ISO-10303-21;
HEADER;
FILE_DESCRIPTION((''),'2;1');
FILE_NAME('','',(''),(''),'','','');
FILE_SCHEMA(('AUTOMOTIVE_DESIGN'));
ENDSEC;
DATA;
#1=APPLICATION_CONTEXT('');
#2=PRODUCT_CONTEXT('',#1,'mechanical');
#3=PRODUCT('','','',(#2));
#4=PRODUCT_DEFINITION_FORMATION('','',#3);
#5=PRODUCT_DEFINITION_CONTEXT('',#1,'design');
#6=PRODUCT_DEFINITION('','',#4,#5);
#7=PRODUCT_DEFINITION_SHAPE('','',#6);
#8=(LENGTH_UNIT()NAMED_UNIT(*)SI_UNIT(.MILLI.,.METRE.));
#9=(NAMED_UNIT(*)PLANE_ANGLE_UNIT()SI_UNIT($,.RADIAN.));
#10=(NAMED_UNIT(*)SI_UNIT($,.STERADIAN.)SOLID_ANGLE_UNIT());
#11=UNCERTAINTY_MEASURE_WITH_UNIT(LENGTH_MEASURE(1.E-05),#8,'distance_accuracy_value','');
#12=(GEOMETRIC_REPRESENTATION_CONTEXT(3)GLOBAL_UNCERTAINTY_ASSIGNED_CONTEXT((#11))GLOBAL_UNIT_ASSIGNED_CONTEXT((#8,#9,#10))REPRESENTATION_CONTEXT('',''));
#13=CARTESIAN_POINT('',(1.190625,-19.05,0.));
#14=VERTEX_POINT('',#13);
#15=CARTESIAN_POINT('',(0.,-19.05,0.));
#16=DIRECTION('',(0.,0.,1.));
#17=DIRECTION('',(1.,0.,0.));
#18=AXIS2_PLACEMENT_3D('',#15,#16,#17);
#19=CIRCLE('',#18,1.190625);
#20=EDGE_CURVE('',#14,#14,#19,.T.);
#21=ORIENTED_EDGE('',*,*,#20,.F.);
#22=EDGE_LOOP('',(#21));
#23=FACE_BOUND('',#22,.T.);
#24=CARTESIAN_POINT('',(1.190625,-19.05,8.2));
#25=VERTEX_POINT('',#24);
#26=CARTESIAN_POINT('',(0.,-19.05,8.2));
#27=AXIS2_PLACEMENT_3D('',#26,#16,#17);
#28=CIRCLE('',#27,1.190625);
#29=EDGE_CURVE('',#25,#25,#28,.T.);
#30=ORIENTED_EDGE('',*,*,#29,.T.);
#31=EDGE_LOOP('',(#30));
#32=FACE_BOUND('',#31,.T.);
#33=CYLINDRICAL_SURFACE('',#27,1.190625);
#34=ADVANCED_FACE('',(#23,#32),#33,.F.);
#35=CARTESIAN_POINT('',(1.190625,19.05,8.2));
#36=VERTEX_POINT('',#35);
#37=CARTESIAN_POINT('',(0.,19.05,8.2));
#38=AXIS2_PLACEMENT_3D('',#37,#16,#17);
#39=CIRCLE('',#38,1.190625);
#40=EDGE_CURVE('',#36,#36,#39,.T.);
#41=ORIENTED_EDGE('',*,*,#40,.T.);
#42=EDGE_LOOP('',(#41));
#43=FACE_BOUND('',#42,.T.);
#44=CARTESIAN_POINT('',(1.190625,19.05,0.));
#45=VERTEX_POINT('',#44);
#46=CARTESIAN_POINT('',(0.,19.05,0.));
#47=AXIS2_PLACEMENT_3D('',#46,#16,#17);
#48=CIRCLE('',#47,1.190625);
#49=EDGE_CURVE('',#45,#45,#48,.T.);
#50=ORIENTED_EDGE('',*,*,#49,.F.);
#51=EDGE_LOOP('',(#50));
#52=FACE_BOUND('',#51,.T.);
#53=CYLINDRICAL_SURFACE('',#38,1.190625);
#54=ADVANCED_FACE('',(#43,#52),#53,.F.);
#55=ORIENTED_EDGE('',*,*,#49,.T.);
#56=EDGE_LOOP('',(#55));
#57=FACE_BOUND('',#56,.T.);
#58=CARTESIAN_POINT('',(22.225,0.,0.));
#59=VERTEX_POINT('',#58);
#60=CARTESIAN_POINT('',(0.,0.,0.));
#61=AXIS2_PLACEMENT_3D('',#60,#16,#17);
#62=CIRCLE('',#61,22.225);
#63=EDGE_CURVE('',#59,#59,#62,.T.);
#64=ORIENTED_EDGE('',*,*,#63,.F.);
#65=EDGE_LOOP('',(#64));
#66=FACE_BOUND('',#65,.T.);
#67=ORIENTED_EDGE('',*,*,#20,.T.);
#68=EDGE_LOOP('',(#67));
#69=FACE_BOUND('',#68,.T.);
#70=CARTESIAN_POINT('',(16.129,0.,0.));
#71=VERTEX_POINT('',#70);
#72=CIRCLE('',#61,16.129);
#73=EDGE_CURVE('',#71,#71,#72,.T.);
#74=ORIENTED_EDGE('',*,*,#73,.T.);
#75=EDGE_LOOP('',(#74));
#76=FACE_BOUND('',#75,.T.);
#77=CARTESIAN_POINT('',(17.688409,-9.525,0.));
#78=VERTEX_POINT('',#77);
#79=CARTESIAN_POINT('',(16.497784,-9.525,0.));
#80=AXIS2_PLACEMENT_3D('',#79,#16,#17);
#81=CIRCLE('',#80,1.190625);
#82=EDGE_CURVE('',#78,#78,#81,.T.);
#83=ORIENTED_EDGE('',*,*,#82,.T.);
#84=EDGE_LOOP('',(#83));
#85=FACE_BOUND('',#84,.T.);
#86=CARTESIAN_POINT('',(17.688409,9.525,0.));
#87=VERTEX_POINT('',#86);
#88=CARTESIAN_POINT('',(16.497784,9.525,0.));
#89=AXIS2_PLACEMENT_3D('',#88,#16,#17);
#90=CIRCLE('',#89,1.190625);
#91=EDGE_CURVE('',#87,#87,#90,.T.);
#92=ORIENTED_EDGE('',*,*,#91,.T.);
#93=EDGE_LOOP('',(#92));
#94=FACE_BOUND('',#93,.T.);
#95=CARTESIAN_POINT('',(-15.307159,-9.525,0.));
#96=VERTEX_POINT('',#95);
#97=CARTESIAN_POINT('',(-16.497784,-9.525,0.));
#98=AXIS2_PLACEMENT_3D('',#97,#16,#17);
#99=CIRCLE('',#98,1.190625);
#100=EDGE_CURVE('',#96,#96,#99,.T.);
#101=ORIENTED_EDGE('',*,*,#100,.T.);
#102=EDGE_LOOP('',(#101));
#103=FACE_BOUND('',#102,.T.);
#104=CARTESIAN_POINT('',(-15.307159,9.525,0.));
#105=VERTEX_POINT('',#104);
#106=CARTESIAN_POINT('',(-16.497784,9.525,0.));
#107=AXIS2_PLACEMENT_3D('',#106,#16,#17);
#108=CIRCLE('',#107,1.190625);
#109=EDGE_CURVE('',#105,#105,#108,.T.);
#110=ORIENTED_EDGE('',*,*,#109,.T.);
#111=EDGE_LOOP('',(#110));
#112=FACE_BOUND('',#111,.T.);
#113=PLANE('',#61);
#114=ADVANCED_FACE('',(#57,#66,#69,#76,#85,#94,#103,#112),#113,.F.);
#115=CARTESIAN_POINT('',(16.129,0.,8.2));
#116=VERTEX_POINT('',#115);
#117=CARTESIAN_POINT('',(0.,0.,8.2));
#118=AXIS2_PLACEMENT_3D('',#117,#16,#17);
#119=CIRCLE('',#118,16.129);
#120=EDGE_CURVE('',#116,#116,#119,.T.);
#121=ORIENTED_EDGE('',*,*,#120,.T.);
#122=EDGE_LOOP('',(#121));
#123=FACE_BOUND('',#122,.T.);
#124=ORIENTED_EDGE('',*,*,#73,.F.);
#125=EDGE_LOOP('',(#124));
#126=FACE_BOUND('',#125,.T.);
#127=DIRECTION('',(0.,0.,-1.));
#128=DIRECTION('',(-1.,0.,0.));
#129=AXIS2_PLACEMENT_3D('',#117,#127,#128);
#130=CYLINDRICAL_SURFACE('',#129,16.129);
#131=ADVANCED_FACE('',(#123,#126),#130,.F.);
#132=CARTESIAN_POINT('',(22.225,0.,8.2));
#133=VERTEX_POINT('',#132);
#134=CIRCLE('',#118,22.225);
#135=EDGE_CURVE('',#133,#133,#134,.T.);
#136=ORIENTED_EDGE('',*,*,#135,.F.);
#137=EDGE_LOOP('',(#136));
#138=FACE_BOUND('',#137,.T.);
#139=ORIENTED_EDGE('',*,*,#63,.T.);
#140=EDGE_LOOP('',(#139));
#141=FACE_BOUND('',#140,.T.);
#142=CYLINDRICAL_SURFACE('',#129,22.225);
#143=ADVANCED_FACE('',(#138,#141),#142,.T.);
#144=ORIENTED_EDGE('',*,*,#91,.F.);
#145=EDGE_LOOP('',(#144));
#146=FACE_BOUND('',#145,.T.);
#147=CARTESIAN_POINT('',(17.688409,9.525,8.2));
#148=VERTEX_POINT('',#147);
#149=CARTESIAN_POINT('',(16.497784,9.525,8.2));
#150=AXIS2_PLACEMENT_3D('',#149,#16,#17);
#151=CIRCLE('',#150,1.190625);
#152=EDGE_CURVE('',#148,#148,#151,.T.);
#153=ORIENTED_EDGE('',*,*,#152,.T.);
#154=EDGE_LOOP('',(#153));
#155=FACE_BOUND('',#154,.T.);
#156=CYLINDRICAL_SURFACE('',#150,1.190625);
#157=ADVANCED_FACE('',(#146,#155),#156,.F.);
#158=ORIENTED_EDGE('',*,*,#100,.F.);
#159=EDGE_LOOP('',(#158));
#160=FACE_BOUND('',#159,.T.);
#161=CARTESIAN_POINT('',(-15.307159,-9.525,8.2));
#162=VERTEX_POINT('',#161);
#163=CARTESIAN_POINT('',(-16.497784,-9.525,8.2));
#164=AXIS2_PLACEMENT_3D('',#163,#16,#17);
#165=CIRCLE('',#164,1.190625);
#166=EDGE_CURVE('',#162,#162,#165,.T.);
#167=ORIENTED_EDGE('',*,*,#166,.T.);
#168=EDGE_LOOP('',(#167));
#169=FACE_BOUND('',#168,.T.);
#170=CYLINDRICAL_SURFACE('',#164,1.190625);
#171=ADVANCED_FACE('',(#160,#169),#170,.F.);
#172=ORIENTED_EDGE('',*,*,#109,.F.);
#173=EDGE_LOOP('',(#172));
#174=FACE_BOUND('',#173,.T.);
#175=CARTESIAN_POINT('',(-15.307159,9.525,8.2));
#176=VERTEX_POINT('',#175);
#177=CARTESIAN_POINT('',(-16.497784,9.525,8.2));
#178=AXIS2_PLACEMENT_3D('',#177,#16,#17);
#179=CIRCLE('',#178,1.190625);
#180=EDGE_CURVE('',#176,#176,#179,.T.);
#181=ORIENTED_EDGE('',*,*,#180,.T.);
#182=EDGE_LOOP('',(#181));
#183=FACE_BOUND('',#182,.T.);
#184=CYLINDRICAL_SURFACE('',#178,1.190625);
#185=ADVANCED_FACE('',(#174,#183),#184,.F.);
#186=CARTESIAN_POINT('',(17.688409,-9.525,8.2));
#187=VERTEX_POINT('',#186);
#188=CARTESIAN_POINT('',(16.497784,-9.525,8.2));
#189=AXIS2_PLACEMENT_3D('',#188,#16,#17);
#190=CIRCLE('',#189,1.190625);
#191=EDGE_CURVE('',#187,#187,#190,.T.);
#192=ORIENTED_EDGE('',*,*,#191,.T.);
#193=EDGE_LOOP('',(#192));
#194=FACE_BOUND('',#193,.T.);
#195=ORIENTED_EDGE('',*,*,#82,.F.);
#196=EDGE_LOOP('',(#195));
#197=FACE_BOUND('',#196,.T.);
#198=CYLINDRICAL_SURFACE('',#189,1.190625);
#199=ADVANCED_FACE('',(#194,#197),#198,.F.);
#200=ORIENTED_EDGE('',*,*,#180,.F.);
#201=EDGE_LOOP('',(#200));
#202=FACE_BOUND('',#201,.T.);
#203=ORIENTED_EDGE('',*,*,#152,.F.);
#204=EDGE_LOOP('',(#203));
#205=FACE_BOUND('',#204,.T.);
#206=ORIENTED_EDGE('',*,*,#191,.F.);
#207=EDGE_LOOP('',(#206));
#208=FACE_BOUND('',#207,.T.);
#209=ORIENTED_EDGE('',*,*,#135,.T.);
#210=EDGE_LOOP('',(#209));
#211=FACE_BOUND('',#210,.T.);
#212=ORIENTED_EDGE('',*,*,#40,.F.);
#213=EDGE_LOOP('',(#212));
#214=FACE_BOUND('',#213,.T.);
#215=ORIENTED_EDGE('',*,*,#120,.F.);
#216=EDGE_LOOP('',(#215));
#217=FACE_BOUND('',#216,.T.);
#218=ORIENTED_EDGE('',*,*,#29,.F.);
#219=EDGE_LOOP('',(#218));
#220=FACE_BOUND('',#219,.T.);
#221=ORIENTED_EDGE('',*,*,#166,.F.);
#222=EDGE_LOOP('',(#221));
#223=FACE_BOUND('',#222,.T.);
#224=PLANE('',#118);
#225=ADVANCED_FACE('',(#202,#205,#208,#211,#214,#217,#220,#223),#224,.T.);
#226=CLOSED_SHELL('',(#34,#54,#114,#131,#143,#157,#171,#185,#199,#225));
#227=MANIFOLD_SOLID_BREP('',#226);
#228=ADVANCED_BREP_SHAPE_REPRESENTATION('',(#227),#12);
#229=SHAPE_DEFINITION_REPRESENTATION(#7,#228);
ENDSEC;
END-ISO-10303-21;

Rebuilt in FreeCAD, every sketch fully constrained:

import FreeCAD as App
import Part
import Sketcher
Q = App.Units.Quantity

doc = App.newDocument("Part")
params = doc.addObject("Spreadsheet::Sheet", "Params")
for row, (alias, value) in enumerate([
    ("sketch1_diameter", "1.75 in"),
    ("sketch1_diameter2", "1.27 in"),
    ("pad1_length", "8.2 mm"),
    ("sketch2_height", "1 in"),
    ("sketch2_width", "0.046875 in"),
    ("groove_angle", "360 deg"),
], start=1):
    params.set(f"A{row}", alias)
    params.set(f"B{row}", "=" + value)
    params.setAlias(f"B{row}", alias)

body = doc.addObject("PartDesign::Body", "Body")

sketch1 = body.newObject("Sketcher::SketchObject", "Sketch")
sketch1.AttachmentSupport = (doc.getObject("XY_Plane"), [""])
sketch1.MapMode = "FlatFace"
sketch1.addGeometry([
    Part.Circle(App.Vector(0, 0, 0), App.Vector(0, 0, 1), 22),
    Part.Circle(App.Vector(0, 0, 0), App.Vector(0, 0, 1), 16),
], False)
sketch1.addConstraint([
    Sketcher.Constraint("Coincident", 0, 3, -1, 1),
    Sketcher.Constraint("Coincident", 1, 3, -1, 1),
    Sketcher.Constraint("Diameter", 0, Q("1.75 in")),
    Sketcher.Constraint("Diameter", 1, Q("1.27 in")),
])
sketch1.setExpression("Constraints[2]", "Params.sketch1_diameter")
sketch1.setExpression("Constraints[3]", "Params.sketch1_diameter2")
pad1 = body.newObject("PartDesign::Pad", "Pad")
pad1.Profile = sketch1
pad1.setExpression("Length", "Params.pad1_length")

sketch2 = body.newObject("Sketcher::SketchObject", "Sketch001")
sketch2.AttachmentSupport = (doc.getObject("YZ_Plane"), [""])
sketch2.MapMode = "FlatFace"
sketch2.addGeometry([
    Part.LineSegment(App.Vector(19.1, -17.9, 0), App.Vector(19.1, 8.2, 0)),
    Part.LineSegment(App.Vector(19.1, 8.2, 0), App.Vector(17.9, 8.2, 0)),
    Part.LineSegment(App.Vector(17.9, 8.2, 0), App.Vector(17.9, -17.2, 0)),
    Part.LineSegment(App.Vector(17.9, -17.2, 0), App.Vector(19.1, -17.9, 0)),
], False)
sketch2.addGeometry(Part.LineSegment(App.Vector(19.1, 8.2, 0), App.Vector(19.1, -17.9, 0)), True)
sketch2.addConstraint([
    Sketcher.Constraint("Coincident", 0, 2, 1, 1),
    Sketcher.Constraint("Coincident", 1, 2, 2, 1),
    Sketcher.Constraint("Coincident", 2, 2, 3, 1),
    Sketcher.Constraint("Coincident", 3, 2, 0, 1),
    Sketcher.Constraint("Vertical", 0),
    Sketcher.Constraint("Horizontal", 1),
    Sketcher.Constraint("Vertical", 2),
    Sketcher.Constraint("Vertical", 4),
    Sketcher.Constraint("Coincident", 4, 1, 0, 2),
    Sketcher.Constraint("Equal", 0, 4),
    Sketcher.Constraint("DistanceY", 2, 2, 2, 1, Q("1 in")),
    Sketcher.Constraint("Angle", 3, Q("-31 deg")),
    Sketcher.Constraint("DistanceX", 1, 2, 1, 1, Q("0.046875 in")),
    Sketcher.Constraint("DistanceX", -1, 1, 0, 2, Q("0.75 in")),
    Sketcher.Constraint("DistanceY", -1, 1, 0, 2, 8.2),
])
sketch2.setExpression("Constraints[10]", "Params.sketch2_height")
sketch2.setExpression("Constraints[12]", "Params.sketch2_width")
groove = body.newObject("PartDesign::Groove", "Groove")
groove.Profile = sketch2
groove.ReferenceAxis = (sketch2, ["Axis0"])
groove.setExpression("Angle", "Params.groove_angle")
doc.recompute()

polarpattern = body.newObject("PartDesign::PolarPattern", "PolarPattern")
polarpattern.Originals = [groove]
polarpattern.Axis = (doc.getObject("Z_Axis"), [""])
polarpattern.Angle = 360
polarpattern.Occurrences = 6
body.Tip = polarpattern

doc.recompute()
